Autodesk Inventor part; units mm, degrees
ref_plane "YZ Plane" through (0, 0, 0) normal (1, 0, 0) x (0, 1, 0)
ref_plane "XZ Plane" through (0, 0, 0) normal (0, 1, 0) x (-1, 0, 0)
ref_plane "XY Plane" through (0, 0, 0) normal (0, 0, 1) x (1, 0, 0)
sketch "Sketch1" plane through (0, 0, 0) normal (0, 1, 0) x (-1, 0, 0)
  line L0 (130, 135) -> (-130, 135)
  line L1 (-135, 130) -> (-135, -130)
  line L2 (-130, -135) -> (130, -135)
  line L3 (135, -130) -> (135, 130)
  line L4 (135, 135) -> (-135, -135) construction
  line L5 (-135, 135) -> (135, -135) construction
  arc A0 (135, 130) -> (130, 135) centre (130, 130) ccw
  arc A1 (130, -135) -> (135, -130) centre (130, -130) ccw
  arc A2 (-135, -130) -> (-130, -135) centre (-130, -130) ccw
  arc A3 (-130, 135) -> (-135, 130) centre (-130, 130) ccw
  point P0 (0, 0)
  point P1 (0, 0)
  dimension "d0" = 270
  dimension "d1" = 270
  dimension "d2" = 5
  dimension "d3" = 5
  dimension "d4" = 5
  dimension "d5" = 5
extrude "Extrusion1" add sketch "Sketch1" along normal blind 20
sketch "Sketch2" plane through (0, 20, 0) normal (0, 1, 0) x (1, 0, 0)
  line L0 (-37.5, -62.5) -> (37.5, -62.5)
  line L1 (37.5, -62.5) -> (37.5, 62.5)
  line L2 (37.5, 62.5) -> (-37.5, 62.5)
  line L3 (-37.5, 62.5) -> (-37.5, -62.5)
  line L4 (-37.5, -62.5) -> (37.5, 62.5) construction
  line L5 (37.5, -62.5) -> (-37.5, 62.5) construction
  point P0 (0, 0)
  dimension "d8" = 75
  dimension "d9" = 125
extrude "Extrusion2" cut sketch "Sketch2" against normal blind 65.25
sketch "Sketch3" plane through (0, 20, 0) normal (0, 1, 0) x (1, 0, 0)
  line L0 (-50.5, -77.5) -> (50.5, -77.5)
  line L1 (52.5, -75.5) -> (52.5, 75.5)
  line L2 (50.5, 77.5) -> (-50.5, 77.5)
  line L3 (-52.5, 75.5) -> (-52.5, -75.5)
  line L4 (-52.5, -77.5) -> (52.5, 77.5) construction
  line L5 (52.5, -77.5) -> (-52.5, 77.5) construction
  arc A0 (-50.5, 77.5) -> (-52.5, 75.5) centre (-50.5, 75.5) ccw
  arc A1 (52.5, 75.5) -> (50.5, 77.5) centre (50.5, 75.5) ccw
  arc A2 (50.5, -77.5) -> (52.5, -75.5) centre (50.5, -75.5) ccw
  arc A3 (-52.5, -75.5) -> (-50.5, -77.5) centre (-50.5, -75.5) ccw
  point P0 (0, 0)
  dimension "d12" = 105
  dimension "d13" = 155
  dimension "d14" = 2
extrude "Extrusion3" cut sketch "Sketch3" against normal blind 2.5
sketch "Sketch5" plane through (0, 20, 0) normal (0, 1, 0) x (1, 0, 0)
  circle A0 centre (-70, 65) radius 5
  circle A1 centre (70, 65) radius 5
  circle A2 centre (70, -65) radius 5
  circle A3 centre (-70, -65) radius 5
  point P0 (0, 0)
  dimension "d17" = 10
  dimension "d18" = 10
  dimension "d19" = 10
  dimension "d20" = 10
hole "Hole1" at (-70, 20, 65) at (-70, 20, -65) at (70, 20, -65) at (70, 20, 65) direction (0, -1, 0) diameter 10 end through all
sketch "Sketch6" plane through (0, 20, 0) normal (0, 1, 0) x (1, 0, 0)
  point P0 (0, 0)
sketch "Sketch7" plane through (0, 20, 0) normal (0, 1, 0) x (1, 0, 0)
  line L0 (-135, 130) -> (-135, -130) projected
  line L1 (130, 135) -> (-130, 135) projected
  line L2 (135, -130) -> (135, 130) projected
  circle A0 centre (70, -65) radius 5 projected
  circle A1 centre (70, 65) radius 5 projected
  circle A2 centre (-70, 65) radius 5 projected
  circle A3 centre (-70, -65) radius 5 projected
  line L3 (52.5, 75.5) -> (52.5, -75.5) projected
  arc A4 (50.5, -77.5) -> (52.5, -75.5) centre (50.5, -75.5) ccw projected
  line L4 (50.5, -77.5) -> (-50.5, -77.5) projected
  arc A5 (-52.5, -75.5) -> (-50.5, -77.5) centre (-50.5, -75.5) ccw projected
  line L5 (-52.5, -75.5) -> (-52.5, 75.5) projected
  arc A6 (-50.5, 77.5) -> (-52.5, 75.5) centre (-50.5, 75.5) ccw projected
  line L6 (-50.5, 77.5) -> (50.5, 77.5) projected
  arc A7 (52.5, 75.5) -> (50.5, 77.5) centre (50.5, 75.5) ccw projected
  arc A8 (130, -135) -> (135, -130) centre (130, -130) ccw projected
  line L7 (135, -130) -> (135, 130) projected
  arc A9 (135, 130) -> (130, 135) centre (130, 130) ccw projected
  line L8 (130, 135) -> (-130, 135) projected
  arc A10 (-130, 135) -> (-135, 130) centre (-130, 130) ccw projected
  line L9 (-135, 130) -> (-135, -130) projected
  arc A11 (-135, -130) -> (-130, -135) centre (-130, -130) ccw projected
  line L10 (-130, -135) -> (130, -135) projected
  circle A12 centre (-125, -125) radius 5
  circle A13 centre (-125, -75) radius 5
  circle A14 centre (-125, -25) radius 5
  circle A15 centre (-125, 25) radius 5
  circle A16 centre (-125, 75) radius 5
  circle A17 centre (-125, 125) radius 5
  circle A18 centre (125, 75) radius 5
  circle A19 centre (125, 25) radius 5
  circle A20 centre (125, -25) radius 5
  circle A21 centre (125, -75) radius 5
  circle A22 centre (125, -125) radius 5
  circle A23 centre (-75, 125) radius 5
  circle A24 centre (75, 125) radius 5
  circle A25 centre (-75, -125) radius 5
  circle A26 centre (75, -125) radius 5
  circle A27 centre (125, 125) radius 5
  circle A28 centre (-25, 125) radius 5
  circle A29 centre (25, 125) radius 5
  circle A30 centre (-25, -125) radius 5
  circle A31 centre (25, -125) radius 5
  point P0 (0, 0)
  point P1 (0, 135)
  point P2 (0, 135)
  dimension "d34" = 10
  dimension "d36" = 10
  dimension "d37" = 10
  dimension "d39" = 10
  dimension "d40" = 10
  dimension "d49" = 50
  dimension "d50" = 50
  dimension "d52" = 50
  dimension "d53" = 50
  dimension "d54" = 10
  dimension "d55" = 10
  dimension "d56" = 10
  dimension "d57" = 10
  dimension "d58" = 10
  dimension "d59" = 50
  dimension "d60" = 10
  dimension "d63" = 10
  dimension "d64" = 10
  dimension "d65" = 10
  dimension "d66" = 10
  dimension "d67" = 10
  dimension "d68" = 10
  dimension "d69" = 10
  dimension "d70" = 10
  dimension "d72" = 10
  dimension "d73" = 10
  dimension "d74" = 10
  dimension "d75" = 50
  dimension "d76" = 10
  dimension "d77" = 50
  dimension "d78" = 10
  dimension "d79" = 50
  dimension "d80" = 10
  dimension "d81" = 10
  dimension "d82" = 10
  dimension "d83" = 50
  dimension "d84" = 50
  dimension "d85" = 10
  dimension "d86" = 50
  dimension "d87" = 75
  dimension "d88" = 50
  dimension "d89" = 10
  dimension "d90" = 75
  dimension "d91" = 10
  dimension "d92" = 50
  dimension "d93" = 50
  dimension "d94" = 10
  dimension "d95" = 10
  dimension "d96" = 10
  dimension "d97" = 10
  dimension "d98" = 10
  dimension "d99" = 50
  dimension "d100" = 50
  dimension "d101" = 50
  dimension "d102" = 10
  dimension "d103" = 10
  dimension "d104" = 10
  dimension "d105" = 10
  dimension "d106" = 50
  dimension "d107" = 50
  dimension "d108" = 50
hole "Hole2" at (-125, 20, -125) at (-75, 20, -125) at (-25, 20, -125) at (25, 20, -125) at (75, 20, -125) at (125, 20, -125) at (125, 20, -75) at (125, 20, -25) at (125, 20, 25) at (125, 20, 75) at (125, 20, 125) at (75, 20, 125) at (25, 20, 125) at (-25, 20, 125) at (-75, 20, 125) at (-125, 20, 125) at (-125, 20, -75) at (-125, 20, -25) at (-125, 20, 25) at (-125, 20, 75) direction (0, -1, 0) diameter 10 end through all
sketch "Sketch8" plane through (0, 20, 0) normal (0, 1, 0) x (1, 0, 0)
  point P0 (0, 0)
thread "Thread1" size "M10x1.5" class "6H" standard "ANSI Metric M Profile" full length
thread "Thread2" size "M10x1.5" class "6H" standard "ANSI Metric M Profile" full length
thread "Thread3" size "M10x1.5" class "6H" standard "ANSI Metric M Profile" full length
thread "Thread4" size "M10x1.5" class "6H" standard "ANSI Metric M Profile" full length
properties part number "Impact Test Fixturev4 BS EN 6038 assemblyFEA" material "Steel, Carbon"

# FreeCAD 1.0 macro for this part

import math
import FreeCAD as App
import Part
import Sketcher

V = App.Vector
Q = App.Units.Quantity


def add_polygon(sketch, points):
    """Adds a closed chain of lines whose ends are joined by coincident constraints."""
    first, n = sketch.GeometryCount, len(points)
    for a, b in zip(points, points[1:] + points[:1]):
        sketch.addGeometry(Part.LineSegment(App.Vector(*a, 0), App.Vector(*b, 0)), False)
    for i in range(n):
        sketch.addConstraint(Sketcher.Constraint("Coincident", first + i, 2, first + (i + 1) % n, 1))

doc = App.newDocument("Part")
params = doc.addObject("Spreadsheet::Sheet", "Params")
for row, (alias, value) in enumerate([
    ("sketch1_radius", "5 mm"),
    ("sketch1_width", "260 mm"),
    ("pad1_length", "20 mm"),
    ("sketch2_width", "75 mm"),
    ("sketch2_height", "125 mm"),
    ("pocket1_length", "65.25 mm"),
    ("sketch3_radius", "2 mm"),
    ("sketch3_height", "151 mm"),
    ("pocket2_length", "2.5 mm"),
    ("sketch4_diameter", "10 mm"),
    ("hole_diameter", "10 mm"),
    ("sketch5_diameter", "10 mm"),
    ("hole2_diameter", "10 mm"),
], start=1):
    params.set(f"A{row}", alias)
    params.set(f"B{row}", "=" + value)
    params.setAlias(f"B{row}", alias)

body = doc.addObject("PartDesign::Body", "Body")

# Sketch on XZ plane
sketch1 = doc.addObject("Sketcher::SketchObject", "Sketch")
body.addObject(sketch1)
sketch1.AttachmentSupport = (doc.XZ_Plane, [""])
sketch1.MapMode = "FlatFace"
sketch1.addGeometry(Part.ArcOfCircle(Part.Circle(V(-130, 130, 0), V(0, 0, 1), 5), math.radians(90), math.radians(180)), False)
sketch1.addGeometry(Part.LineSegment(V(-130, 135, 0), V(130, 135, 0)), False)
sketch1.addGeometry(Part.ArcOfCircle(Part.Circle(V(130, 130, 0), V(0, 0, 1), 5), math.radians(0), math.radians(90)), False)
sketch1.addGeometry(Part.LineSegment(V(135, 130, 0), V(135, -130, 0)), False)
sketch1.addGeometry(Part.ArcOfCircle(Part.Circle(V(130, -130, 0), V(0, 0, 1), 5), math.radians(-90), math.radians(0)), False)
sketch1.addGeometry(Part.LineSegment(V(130, -135, 0), V(-130, -135, 0)), False)
sketch1.addGeometry(Part.ArcOfCircle(Part.Circle(V(-130, -130, 0), V(0, 0, 1), 5), math.radians(180), math.radians(270)), False)
sketch1.addGeometry(Part.LineSegment(V(-135, -130, 0), V(-135, 130, 0)), False)
sketch1.addConstraint(Sketcher.Constraint("Tangent", 0, 1, 1, 1))
sketch1.addConstraint(Sketcher.Constraint("Tangent", 1, 2, 2, 2))
sketch1.addConstraint(Sketcher.Constraint("Tangent", 2, 1, 3, 1))
sketch1.addConstraint(Sketcher.Constraint("Tangent", 3, 2, 4, 2))
sketch1.addConstraint(Sketcher.Constraint("Tangent", 4, 1, 5, 1))
sketch1.addConstraint(Sketcher.Constraint("Tangent", 5, 2, 6, 2))
sketch1.addConstraint(Sketcher.Constraint("Tangent", 6, 1, 7, 1))
sketch1.addConstraint(Sketcher.Constraint("Tangent", 7, 2, 0, 2))
sketch1.addConstraint(Sketcher.Constraint("Horizontal", 1))
sketch1.addConstraint(Sketcher.Constraint("Vertical", 3))
sketch1.addConstraint(Sketcher.Constraint("Horizontal", 5))
sketch1.addConstraint(Sketcher.Constraint("Vertical", 7))
sketch1.addConstraint(Sketcher.Constraint("Equal", 0, 2))
sketch1.addConstraint(Sketcher.Constraint("Equal", 2, 4))
sketch1.addConstraint(Sketcher.Constraint("Equal", 4, 6))
sketch1.addConstraint(Sketcher.Constraint("Symmetric", 0, 3, 4, 3, -1, 1))
sketch1.addConstraint(Sketcher.Constraint("Equal", 5, 3))
sketch1.addConstraint(Sketcher.Constraint("Radius", 0, Q("5 mm")))
sketch1.addConstraint(Sketcher.Constraint("DistanceX", 1, 1, 1, 2, Q("260 mm")))
sketch1.setExpression("Constraints[17]", "Params.sketch1_radius")
sketch1.setExpression("Constraints[18]", "Params.sketch1_width")
pad1 = doc.addObject("PartDesign::Pad", "Pad")
body.addObject(pad1)
pad1.Profile = sketch1
pad1.setExpression("Length", "Params.pad1_length")
pad1.Reversed = True

# Sketch on XZ plane
sketch2 = doc.addObject("Sketcher::SketchObject", "Sketch001")
body.addObject(sketch2)
sketch2.AttachmentSupport = (doc.XZ_Plane, [""])
sketch2.MapMode = "FlatFace"
sketch2.AttachmentOffset = App.Placement(V(0, 0, -20), App.Rotation())
add_polygon(sketch2, [(-38, -62), (-38, 62), (38, 62), (38, -62)])  # lines 0-3
sketch2.addConstraint(Sketcher.Constraint("Vertical", 0))
sketch2.addConstraint(Sketcher.Constraint("Horizontal", 1))
sketch2.addConstraint(Sketcher.Constraint("Vertical", 2))
sketch2.addConstraint(Sketcher.Constraint("Horizontal", 3))
sketch2.addConstraint(Sketcher.Constraint("Symmetric", 0, 2, 2, 2, -1, 1))
sketch2.addConstraint(Sketcher.Constraint("DistanceX", 1, 1, 1, 2, Q("75 mm")))
sketch2.addConstraint(Sketcher.Constraint("DistanceY", 0, 1, 0, 2, Q("125 mm")))
sketch2.setExpression("Constraints[9]", "Params.sketch2_width")
sketch2.setExpression("Constraints[10]", "Params.sketch2_height")
pocket1 = doc.addObject("PartDesign::Pocket", "Pocket")
body.addObject(pocket1)
pocket1.Profile = sketch2
pocket1.setExpression("Length", "Params.pocket1_length")
pocket1.Reversed = True

# Sketch on XZ plane
sketch3 = doc.addObject("Sketcher::SketchObject", "Sketch002")
body.addObject(sketch3)
sketch3.AttachmentSupport = (doc.XZ_Plane, [""])
sketch3.MapMode = "FlatFace"
sketch3.AttachmentOffset = App.Placement(V(0, 0, -20), App.Rotation())
sketch3.addGeometry(Part.ArcOfCircle(Part.Circle(V(-50.5, 75.5, 0), V(0, 0, 1), 2), math.radians(90), math.radians(180)), False)
sketch3.addGeometry(Part.LineSegment(V(-50.5, 77.5, 0), V(50.5, 77.5, 0)), False)
sketch3.addGeometry(Part.ArcOfCircle(Part.Circle(V(50.5, 75.5, 0), V(0, 0, 1), 2), math.radians(0), math.radians(90)), False)
sketch3.addGeometry(Part.LineSegment(V(52.5, 75.5, 0), V(52.5, -75.5, 0)), False)
sketch3.addGeometry(Part.ArcOfCircle(Part.Circle(V(50.5, -75.5, 0), V(0, 0, 1), 2), math.radians(-90), math.radians(0)), False)
sketch3.addGeometry(Part.LineSegment(V(50.5, -77.5, 0), V(-50.5, -77.5, 0)), False)
sketch3.addGeometry(Part.ArcOfCircle(Part.Circle(V(-50.5, -75.5, 0), V(0, 0, 1), 2), math.radians(180), math.radians(270)), False)
sketch3.addGeometry(Part.LineSegment(V(-52.5, -75.5, 0), V(-52.5, 75.5, 0)), False)
sketch3.addConstraint(Sketcher.Constraint("Tangent", 0, 1, 1, 1))
sketch3.addConstraint(Sketcher.Constraint("Tangent", 1, 2, 2, 2))
sketch3.addConstraint(Sketcher.Constraint("Tangent", 2, 1, 3, 1))
sketch3.addConstraint(Sketcher.Constraint("Tangent", 3, 2, 4, 2))
sketch3.addConstraint(Sketcher.Constraint("Tangent", 4, 1, 5, 1))
sketch3.addConstraint(Sketcher.Constraint("Tangent", 5, 2, 6, 2))
sketch3.addConstraint(Sketcher.Constraint("Tangent", 6, 1, 7, 1))
sketch3.addConstraint(Sketcher.Constraint("Tangent", 7, 2, 0, 2))
sketch3.addConstraint(Sketcher.Constraint("Horizontal", 1))
sketch3.addConstraint(Sketcher.Constraint("Vertical", 3))
sketch3.addConstraint(Sketcher.Constraint("Horizontal", 5))
sketch3.addConstraint(Sketcher.Constraint("Vertical", 7))
sketch3.addConstraint(Sketcher.Constraint("Equal", 0, 2))
sketch3.addConstraint(Sketcher.Constraint("Equal", 2, 4))
sketch3.addConstraint(Sketcher.Constraint("Equal", 4, 6))
sketch3.addConstraint(Sketcher.Constraint("Symmetric", 0, 3, 4, 3, -1, 1))
sketch3.addConstraint(Sketcher.Constraint("Radius", 0, Q("2 mm")))
sketch3.addConstraint(Sketcher.Constraint("DistanceX", 6, 1, 3, 2, Q("105 mm")))
sketch3.addConstraint(Sketcher.Constraint("DistanceY", 3, 2, 3, 1, Q("151 mm")))
sketch3.setExpression("Constraints[16]", "Params.sketch3_radius")
sketch3.setExpression("Constraints[18]", "Params.sketch3_height")
pocket2 = doc.addObject("PartDesign::Pocket", "Pocket001")
body.addObject(pocket2)
pocket2.Profile = sketch3
pocket2.setExpression("Length", "Params.pocket2_length")
pocket2.Reversed = True

# Sketch on XZ plane
sketch4 = doc.addObject("Sketcher::SketchObject", "Sketch003")
body.addObject(sketch4)
sketch4.AttachmentSupport = (doc.XZ_Plane, [""])
sketch4.MapMode = "FlatFace"
sketch4.AttachmentOffset = App.Placement(V(0, 0, -20), App.Rotation())
sketch4.addGeometry(Part.Circle(V(-70, 65, 0), V(0, 0, 1), 5), False)
sketch4.addGeometry(Part.Circle(V(-70, -65, 0), V(0, 0, 1), 5), False)
sketch4.addGeometry(Part.Circle(V(70, -65, 0), V(0, 0, 1), 5), False)
sketch4.addGeometry(Part.Circle(V(70, 65, 0), V(0, 0, 1), 5), False)
sketch4.addConstraint(Sketcher.Constraint("Equal", 0, 1))
sketch4.addConstraint(Sketcher.Constraint("Equal", 1, 2))
sketch4.addConstraint(Sketcher.Constraint("Equal", 2, 3))
sketch4.addConstraint(Sketcher.Constraint("Symmetric", 0, 3, 2, 3, -1, 1))
sketch4.addConstraint(Sketcher.Constraint("Symmetric", 1, 3, 3, 3, -1, 1))
sketch4.addConstraint(Sketcher.Constraint("Symmetric", 1, 3, 2, 3, -2))
sketch4.addConstraint(Sketcher.Constraint("Diameter", 0, Q("10 mm")))
sketch4.addConstraint(Sketcher.Constraint("DistanceX", 0, 3, -1, 1, Q("70 mm")))
sketch4.addConstraint(Sketcher.Constraint("DistanceY", -1, 1, 0, 3, Q("65 mm")))
sketch4.setExpression("Constraints[6]", "Params.sketch4_diameter")
doc.recompute()
hole = doc.addObject("PartDesign::Hole", "Hole")
body.addObject(hole)
hole.Profile = sketch4
hole.ThreadType = "None"
hole.setExpression("Diameter", "Params.hole_diameter")
hole.DepthType = "ThroughAll"
hole.Reversed = True

# Sketch on XZ plane
sketch5 = doc.addObject("Sketcher::SketchObject", "Sketch004")
body.addObject(sketch5)
sketch5.AttachmentSupport = (doc.XZ_Plane, [""])
sketch5.MapMode = "FlatFace"
sketch5.AttachmentOffset = App.Placement(V(0, 0, -20), App.Rotation())
sketch5.addGeometry(Part.Circle(V(-125, -125, 0), V(0, 0, 1), 5), False)
sketch5.addGeometry(Part.Circle(V(-75, -125, 0), V(0, 0, 1), 5), False)
sketch5.addGeometry(Part.Circle(V(-25, -125, 0), V(0, 0, 1), 5), False)
sketch5.addGeometry(Part.Circle(V(25, -125, 0), V(0, 0, 1), 5), False)
sketch5.addGeometry(Part.Circle(V(75, -125, 0), V(0, 0, 1), 5), False)
sketch5.addGeometry(Part.Circle(V(125, -125, 0), V(0, 0, 1), 5), False)
sketch5.addGeometry(Part.Circle(V(125, -75, 0), V(0, 0, 1), 5), False)
sketch5.addGeometry(Part.Circle(V(125, -25, 0), V(0, 0, 1), 5), False)
sketch5.addGeometry(Part.Circle(V(125, 25, 0), V(0, 0, 1), 5), False)
sketch5.addGeometry(Part.Circle(V(125, 75, 0), V(0, 0, 1), 5), False)
sketch5.addGeometry(Part.Circle(V(125, 125, 0), V(0, 0, 1), 5), False)
sketch5.addGeometry(Part.Circle(V(75, 125, 0), V(0, 0, 1), 5), False)
sketch5.addGeometry(Part.Circle(V(25, 125, 0), V(0, 0, 1), 5), False)
sketch5.addGeometry(Part.Circle(V(-25, 125, 0), V(0, 0, 1), 5), False)
sketch5.addGeometry(Part.Circle(V(-75, 125, 0), V(0, 0, 1), 5), False)
sketch5.addGeometry(Part.Circle(V(-125, 125, 0), V(0, 0, 1), 5), False)
sketch5.addGeometry(Part.Circle(V(-125, -75, 0), V(0, 0, 1), 5), False)
sketch5.addGeometry(Part.Circle(V(-125, -25, 0), V(0, 0, 1), 5), False)
sketch5.addGeometry(Part.Circle(V(-125, 25, 0), V(0, 0, 1), 5), False)
sketch5.addGeometry(Part.Circle(V(-125, 75, 0), V(0, 0, 1), 5), False)
sketch5.addConstraint(Sketcher.Constraint("Equal", 0, 1))
sketch5.addConstraint(Sketcher.Constraint("Equal", 1, 2))
sketch5.addConstraint(Sketcher.Constraint("Equal", 2, 3))
sketch5.addConstraint(Sketcher.Constraint("Equal", 3, 4))
sketch5.addConstraint(Sketcher.Constraint("Equal", 4, 5))
sketch5.addConstraint(Sketcher.Constraint("Equal", 5, 6))
sketch5.addConstraint(Sketcher.Constraint("Equal", 6, 7))
sketch5.addConstraint(Sketcher.Constraint("Equal", 7, 8))
sketch5.addConstraint(Sketcher.Constraint("Equal", 8, 9))
sketch5.addConstraint(Sketcher.Constraint("Equal", 9, 10))
sketch5.addConstraint(Sketcher.Constraint("Equal", 10, 11))
sketch5.addConstraint(Sketcher.Constraint("Equal", 11, 12))
sketch5.addConstraint(Sketcher.Constraint("Equal", 12, 13))
sketch5.addConstraint(Sketcher.Constraint("Equal", 13, 14))
sketch5.addConstraint(Sketcher.Constraint("Equal", 14, 15))
sketch5.addConstraint(Sketcher.Constraint("Equal", 15, 16))
sketch5.addConstraint(Sketcher.Constraint("Equal", 16, 17))
sketch5.addConstraint(Sketcher.Constraint("Equal", 17, 18))
sketch5.addConstraint(Sketcher.Constraint("Equal", 18, 19))
sketch5.addConstraint(Sketcher.Constraint("Symmetric", 0, 3, 10, 3, -1, 1))
sketch5.addConstraint(Sketcher.Constraint("Symmetric", 1, 3, 11, 3, -1, 1))
sketch5.addConstraint(Sketcher.Constraint("Symmetric", 2, 3, 12, 3, -1, 1))
sketch5.addConstraint(Sketcher.Constraint("Symmetric", 3, 3, 13, 3, -1, 1))
sketch5.addConstraint(Sketcher.Constraint("Symmetric", 4, 3, 14, 3, -1, 1))
sketch5.addConstraint(Sketcher.Constraint("Symmetric", 5, 3, 15, 3, -1, 1))
sketch5.addConstraint(Sketcher.Constraint("Symmetric", 9, 3, 16, 3, -1, 1))
sketch5.addConstraint(Sketcher.Constraint("Symmetric", 8, 3, 17, 3, -1, 1))
sketch5.addConstraint(Sketcher.Constraint("Symmetric", 7, 3, 18, 3, -1, 1))
sketch5.addConstraint(Sketcher.Constraint("Symmetric", 6, 3, 19, 3, -1, 1))
sketch5.addConstraint(Sketcher.Constraint("Symmetric", 2, 3, 3, 3, -2))
sketch5.addConstraint(Sketcher.Constraint("Symmetric", 1, 3, 4, 3, -2))
sketch5.addConstraint(Sketcher.Constraint("Symmetric", 0, 3, 5, 3, -2))
sketch5.addConstraint(Sketcher.Constraint("Symmetric", 6, 3, 16, 3, -2))
sketch5.addConstraint(Sketcher.Constraint("Symmetric", 7, 3, 17, 3, -2))
sketch5.addConstraint(Sketcher.Constraint("Horizontal", 0, 3, 1, 3))
sketch5.addConstraint(Sketcher.Constraint("Horizontal", 1, 3, 2, 3))
sketch5.addConstraint(Sketcher.Constraint("Vertical", 5, 3, 6, 3))
sketch5.addConstraint(Sketcher.Constraint("Vertical", 6, 3, 7, 3))
sketch5.addConstraint(Sketcher.Constraint("Diameter", 0, Q("10 mm")))
sketch5.addConstraint(Sketcher.Constraint("DistanceX", 0, 3, -1, 1, Q("125 mm")))
sketch5.addConstraint(Sketcher.Constraint("DistanceY", 0, 3, -1, 1, Q("125 mm")))
sketch5.addConstraint(Sketcher.Constraint("DistanceX", 1, 3, -1, 1, Q("75 mm")))
sketch5.addConstraint(Sketcher.Constraint("DistanceX", 2, 3, -1, 1, Q("25 mm")))
sketch5.addConstraint(Sketcher.Constraint("DistanceY", 6, 3, -1, 1, Q("75 mm")))
sketch5.addConstraint(Sketcher.Constraint("DistanceY", 7, 3, -1, 1, Q("25 mm")))
sketch5.setExpression("Constraints[38]", "Params.sketch5_diameter")
doc.recompute()
hole2 = doc.addObject("PartDesign::Hole", "Hole001")
body.addObject(hole2)
hole2.Profile = sketch5
hole2.ThreadType = "None"
hole2.setExpression("Diameter", "Params.hole2_diameter")
hole2.DepthType = "ThroughAll"
hole2.Reversed = True

doc.recompute()
